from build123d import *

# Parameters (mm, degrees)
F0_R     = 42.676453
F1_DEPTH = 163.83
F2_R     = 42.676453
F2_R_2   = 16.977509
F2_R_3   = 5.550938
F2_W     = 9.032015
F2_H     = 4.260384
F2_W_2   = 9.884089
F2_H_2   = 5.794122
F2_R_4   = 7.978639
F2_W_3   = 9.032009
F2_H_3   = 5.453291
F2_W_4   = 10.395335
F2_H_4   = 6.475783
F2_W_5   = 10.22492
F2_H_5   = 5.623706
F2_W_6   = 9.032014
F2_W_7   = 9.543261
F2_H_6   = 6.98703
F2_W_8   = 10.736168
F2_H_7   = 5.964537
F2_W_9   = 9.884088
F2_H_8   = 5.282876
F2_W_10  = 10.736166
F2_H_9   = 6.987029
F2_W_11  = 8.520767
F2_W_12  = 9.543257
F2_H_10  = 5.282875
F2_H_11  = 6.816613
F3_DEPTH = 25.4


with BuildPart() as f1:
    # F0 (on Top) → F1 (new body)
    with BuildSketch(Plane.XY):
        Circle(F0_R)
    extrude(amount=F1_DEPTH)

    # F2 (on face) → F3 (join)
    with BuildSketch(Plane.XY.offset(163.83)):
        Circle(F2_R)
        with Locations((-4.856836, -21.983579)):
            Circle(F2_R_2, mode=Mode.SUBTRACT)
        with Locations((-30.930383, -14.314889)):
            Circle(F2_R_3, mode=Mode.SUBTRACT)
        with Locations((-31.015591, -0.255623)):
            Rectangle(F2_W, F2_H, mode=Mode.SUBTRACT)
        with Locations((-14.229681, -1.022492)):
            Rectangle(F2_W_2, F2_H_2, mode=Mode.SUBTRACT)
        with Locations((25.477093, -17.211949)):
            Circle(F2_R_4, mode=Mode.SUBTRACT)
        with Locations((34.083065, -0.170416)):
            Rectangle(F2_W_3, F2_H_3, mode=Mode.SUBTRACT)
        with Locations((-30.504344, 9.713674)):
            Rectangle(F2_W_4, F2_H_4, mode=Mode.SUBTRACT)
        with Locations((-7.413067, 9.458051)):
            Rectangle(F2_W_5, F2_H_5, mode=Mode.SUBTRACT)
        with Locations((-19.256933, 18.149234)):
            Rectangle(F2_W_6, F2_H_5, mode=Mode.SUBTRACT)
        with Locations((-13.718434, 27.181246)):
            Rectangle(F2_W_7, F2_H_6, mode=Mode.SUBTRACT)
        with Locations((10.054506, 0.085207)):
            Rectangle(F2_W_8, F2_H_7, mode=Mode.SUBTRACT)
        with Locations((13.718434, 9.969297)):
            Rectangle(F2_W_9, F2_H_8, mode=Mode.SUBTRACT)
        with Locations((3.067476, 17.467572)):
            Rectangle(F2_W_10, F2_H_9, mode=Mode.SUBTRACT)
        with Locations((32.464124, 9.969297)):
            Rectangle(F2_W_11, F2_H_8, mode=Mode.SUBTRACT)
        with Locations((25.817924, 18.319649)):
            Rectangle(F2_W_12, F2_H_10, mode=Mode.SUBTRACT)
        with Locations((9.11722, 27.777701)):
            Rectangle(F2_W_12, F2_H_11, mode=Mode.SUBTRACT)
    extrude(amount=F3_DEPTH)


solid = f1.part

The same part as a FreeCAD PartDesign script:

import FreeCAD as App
import Part
import Sketcher
Q = App.Units.Quantity

doc = App.newDocument("Part")
body = doc.addObject("PartDesign::Body", "Body")

sketch1 = body.newObject("Sketcher::SketchObject", "Sketch")
sketch1.AttachmentSupport = (doc.getObject("XY_Plane"), [""])
sketch1.MapMode = "FlatFace"
sketch1.addGeometry(Part.Circle(App.Vector(0, 0, 0), App.Vector(0, 0, 1), 43), False)
sketch1.addConstraint(Sketcher.Constraint("Coincident", 0, 3, -1, 1))
sketch1.addConstraint(Sketcher.Constraint("Diameter", 0, Q("85.352906 mm")))
pad1 = body.newObject("PartDesign::Pad", "Pad")
pad1.Profile = sketch1
pad1.Length = Q("6.45 in")

sketch2 = body.newObject("Sketcher::SketchObject", "Sketch001")
sketch2.AttachmentSupport = (doc.getObject("XY_Plane"), [""])
sketch2.MapMode = "FlatFace"
sketch2.AttachmentOffset = App.Placement(App.Vector(0, 0, 6.45 * 25.4), App.Rotation())
sketch2.addGeometry(Part.Circle(App.Vector(0, 0, 0), App.Vector(0, 0, 1), 42.7), False)
sketch2.addGeometry(Part.Circle(App.Vector(-4.9, -22, 0), App.Vector(0, 0, 1), 17), False)
sketch2.addGeometry(Part.Circle(App.Vector(-30.9, -14.3, 0), App.Vector(0, 0, 1), 5.6), False)
sketch2.addGeometry(Part.Circle(App.Vector(25.5, -17.2, 0), App.Vector(0, 0, 1), 8), False)
sketch2.addGeometry(Part.LineSegment(App.Vector(-26.5, -2.4, 0), App.Vector(-35.5, -2.4, 0)), False)
sketch2.addGeometry(Part.LineSegment(App.Vector(-35.5, -2.4, 0), App.Vector(-35.5, 1.9, 0)), False)
sketch2.addGeometry(Part.LineSegment(App.Vector(-35.5, 1.9, 0), App.Vector(-26.5, 1.9, 0)), False)
sketch2.addGeometry(Part.LineSegment(App.Vector(-26.5, 1.9, 0), App.Vector(-26.5, -2.4, 0)), False)
sketch2.addGeometry(Part.LineSegment(App.Vector(-25.3, 6.5, 0), App.Vector(-35.7, 6.5, 0)), False)
sketch2.addGeometry(Part.LineSegment(App.Vector(-35.7, 6.5, 0), App.Vector(-35.7, 13, 0)), False)
sketch2.addGeometry(Part.LineSegment(App.Vector(-35.7, 13, 0), App.Vector(-25.3, 13, 0)), False)
sketch2.addGeometry(Part.LineSegment(App.Vector(-25.3, 13, 0), App.Vector(-25.3, 6.5, 0)), False)
sketch2.addGeometry(Part.LineSegment(App.Vector(-9.3, -3.9, 0), App.Vector(-19.2, -3.9, 0)), False)
sketch2.addGeometry(Part.LineSegment(App.Vector(-19.2, -3.9, 0), App.Vector(-19.2, 1.9, 0)), False)
sketch2.addGeometry(Part.LineSegment(App.Vector(-19.2, 1.9, 0), App.Vector(-9.3, 1.9, 0)), False)
sketch2.addGeometry(Part.LineSegment(App.Vector(-9.3, 1.9, 0), App.Vector(-9.3, -3.9, 0)), False)
sketch2.addGeometry(Part.LineSegment(App.Vector(-2.3, 6.6, 0), App.Vector(-12.5, 6.6, 0)), False)
sketch2.addGeometry(Part.LineSegment(App.Vector(-12.5, 6.6, 0), App.Vector(-12.5, 12.3, 0)), False)
sketch2.addGeometry(Part.LineSegment(App.Vector(-12.5, 12.3, 0), App.Vector(-2.3, 12.3, 0)), False)
sketch2.addGeometry(Part.LineSegment(App.Vector(-2.3, 12.3, 0), App.Vector(-2.3, 6.6, 0)), False)
sketch2.addGeometry(Part.LineSegment(App.Vector(-14.7, 15.3, 0), App.Vector(-23.8, 15.3, 0)), False)
sketch2.addGeometry(Part.LineSegment(App.Vector(-23.8, 15.3, 0), App.Vector(-23.8, 21, 0)), False)
sketch2.addGeometry(Part.LineSegment(App.Vector(-23.8, 21, 0), App.Vector(-14.7, 21, 0)), False)
sketch2.addGeometry(Part.LineSegment(App.Vector(-14.7, 21, 0), App.Vector(-14.7, 15.3, 0)), False)
sketch2.addGeometry(Part.LineSegment(App.Vector(-8.9, 23.7, 0), App.Vector(-18.5, 23.7, 0)), False)
sketch2.addGeometry(Part.LineSegment(App.Vector(-18.5, 23.7, 0), App.Vector(-18.5, 30.7, 0)), False)
sketch2.addGeometry(Part.LineSegment(App.Vector(-18.5, 30.7, 0), App.Vector(-8.9, 30.7, 0)), False)
sketch2.addGeometry(Part.LineSegment(App.Vector(-8.9, 30.7, 0), App.Vector(-8.9, 23.7, 0)), False)
sketch2.addGeometry(Part.LineSegment(App.Vector(15.4, -2.9, 0), App.Vector(4.7, -2.9, 0)), False)
sketch2.addGeometry(Part.LineSegment(App.Vector(4.7, -2.9, 0), App.Vector(4.7, 3.1, 0)), False)
sketch2.addGeometry(Part.LineSegment(App.Vector(4.7, 3.1, 0), App.Vector(15.4, 3.1, 0)), False)
sketch2.addGeometry(Part.LineSegment(App.Vector(15.4, 3.1, 0), App.Vector(15.4, -2.9, 0)), False)
sketch2.addGeometry(Part.LineSegment(App.Vector(18.7, 7.3, 0), App.Vector(8.8, 7.3, 0)), False)
sketch2.addGeometry(Part.LineSegment(App.Vector(8.8, 7.3, 0), App.Vector(8.8, 12.6, 0)), False)
sketch2.addGeometry(Part.LineSegment(App.Vector(8.8, 12.6, 0), App.Vector(18.7, 12.6, 0)), False)
sketch2.addGeometry(Part.LineSegment(App.Vector(18.7, 12.6, 0), App.Vector(18.7, 7.3, 0)), False)
sketch2.addGeometry(Part.LineSegment(App.Vector(38.6, -2.9, 0), App.Vector(29.6, -2.9, 0)), False)
sketch2.addGeometry(Part.LineSegment(App.Vector(29.6, -2.9, 0), App.Vector(29.6, 2.6, 0)), False)
sketch2.addGeometry(Part.LineSegment(App.Vector(29.6, 2.6, 0), App.Vector(38.6, 2.6, 0)), False)
sketch2.addGeometry(Part.LineSegment(App.Vector(38.6, 2.6, 0), App.Vector(38.6, -2.9, 0)), False)
sketch2.addGeometry(Part.LineSegment(App.Vector(36.7, 7.3, 0), App.Vector(28.2, 7.3, 0)), False)
sketch2.addGeometry(Part.LineSegment(App.Vector(28.2, 7.3, 0), App.Vector(28.2, 12.6, 0)), False)
sketch2.addGeometry(Part.LineSegment(App.Vector(28.2, 12.6, 0), App.Vector(36.7, 12.6, 0)), False)
sketch2.addGeometry(Part.LineSegment(App.Vector(36.7, 12.6, 0), App.Vector(36.7, 7.3, 0)), False)
sketch2.addGeometry(Part.LineSegment(App.Vector(8.4, 14, 0), App.Vector(-2.3, 14, 0)), False)
sketch2.addGeometry(Part.LineSegment(App.Vector(-2.3, 14, 0), App.Vector(-2.3, 21, 0)), False)
sketch2.addGeometry(Part.LineSegment(App.Vector(-2.3, 21, 0), App.Vector(8.4, 21, 0)), False)
sketch2.addGeometry(Part.LineSegment(App.Vector(8.4, 21, 0), App.Vector(8.4, 14, 0)), False)
sketch2.addGeometry(Part.LineSegment(App.Vector(13.9, 24.4, 0), App.Vector(4.3, 24.4, 0)), False)
sketch2.addGeometry(Part.LineSegment(App.Vector(4.3, 24.4, 0), App.Vector(4.3, 31.2, 0)), False)
sketch2.addGeometry(Part.LineSegment(App.Vector(4.3, 31.2, 0), App.Vector(13.9, 31.2, 0)), False)
sketch2.addGeometry(Part.LineSegment(App.Vector(13.9, 31.2, 0), App.Vector(13.9, 24.4, 0)), False)
sketch2.addGeometry(Part.LineSegment(App.Vector(30.6, 15.7, 0), App.Vector(21, 15.7, 0)), False)
sketch2.addGeometry(Part.LineSegment(App.Vector(21, 15.7, 0), App.Vector(21, 21, 0)), False)
sketch2.addGeometry(Part.LineSegment(App.Vector(21, 21, 0), App.Vector(30.6, 21, 0)), False)
sketch2.addGeometry(Part.LineSegment(App.Vector(30.6, 21, 0), App.Vector(30.6, 15.7, 0)), False)
sketch2.addConstraint(Sketcher.Constraint("Coincident", 4, 2, 5, 1))
sketch2.addConstraint(Sketcher.Constraint("Coincident", 5, 2, 6, 1))
sketch2.addConstraint(Sketcher.Constraint("Coincident", 6, 2, 7, 1))
sketch2.addConstraint(Sketcher.Constraint("Coincident", 7, 2, 4, 1))
sketch2.addConstraint(Sketcher.Constraint("Coincident", 8, 2, 9, 1))
sketch2.addConstraint(Sketcher.Constraint("Coincident", 9, 2, 10, 1))
sketch2.addConstraint(Sketcher.Constraint("Coincident", 10, 2, 11, 1))
sketch2.addConstraint(Sketcher.Constraint("Coincident", 11, 2, 8, 1))
sketch2.addConstraint(Sketcher.Constraint("Coincident", 12, 2, 13, 1))
sketch2.addConstraint(Sketcher.Constraint("Coincident", 13, 2, 14, 1))
sketch2.addConstraint(Sketcher.Constraint("Coincident", 14, 2, 15, 1))
sketch2.addConstraint(Sketcher.Constraint("Coincident", 15, 2, 12, 1))
sketch2.addConstraint(Sketcher.Constraint("Coincident", 16, 2, 17, 1))
sketch2.addConstraint(Sketcher.Constraint("Coincident", 17, 2, 18, 1))
sketch2.addConstraint(Sketcher.Constraint("Coincident", 18, 2, 19, 1))
sketch2.addConstraint(Sketcher.Constraint("Coincident", 19, 2, 16, 1))
sketch2.addConstraint(Sketcher.Constraint("Coincident", 20, 2, 21, 1))
sketch2.addConstraint(Sketcher.Constraint("Coincident", 21, 2, 22, 1))
sketch2.addConstraint(Sketcher.Constraint("Coincident", 22, 2, 23, 1))
sketch2.addConstraint(Sketcher.Constraint("Coincident", 23, 2, 20, 1))
sketch2.addConstraint(Sketcher.Constraint("Coincident", 24, 2, 25, 1))
sketch2.addConstraint(Sketcher.Constraint("Coincident", 25, 2, 26, 1))
sketch2.addConstraint(Sketcher.Constraint("Coincident", 26, 2, 27, 1))
sketch2.addConstraint(Sketcher.Constraint("Coincident", 27, 2, 24, 1))
sketch2.addConstraint(Sketcher.Constraint("Coincident", 28, 2, 29, 1))
sketch2.addConstraint(Sketcher.Constraint("Coincident", 29, 2, 30, 1))
sketch2.addConstraint(Sketcher.Constraint("Coincident", 30, 2, 31, 1))
sketch2.addConstraint(Sketcher.Constraint("Coincident", 31, 2, 28, 1))
sketch2.addConstraint(Sketcher.Constraint("Coincident", 32, 2, 33, 1))
sketch2.addConstraint(Sketcher.Constraint("Coincident", 33, 2, 34, 1))
sketch2.addConstraint(Sketcher.Constraint("Coincident", 34, 2, 35, 1))
sketch2.addConstraint(Sketcher.Constraint("Coincident", 35, 2, 32, 1))
sketch2.addConstraint(Sketcher.Constraint("Coincident", 36, 2, 37, 1))
sketch2.addConstraint(Sketcher.Constraint("Coincident", 37, 2, 38, 1))
sketch2.addConstraint(Sketcher.Constraint("Coincident", 38, 2, 39, 1))
sketch2.addConstraint(Sketcher.Constraint("Coincident", 39, 2, 36, 1))
sketch2.addConstraint(Sketcher.Constraint("Coincident", 40, 2, 41, 1))
sketch2.addConstraint(Sketcher.Constraint("Coincident", 41, 2, 42, 1))
sketch2.addConstraint(Sketcher.Constraint("Coincident", 42, 2, 43, 1))
sketch2.addConstraint(Sketcher.Constraint("Coincident", 43, 2, 40, 1))
sketch2.addConstraint(Sketcher.Constraint("Coincident", 44, 2, 45, 1))
sketch2.addConstraint(Sketcher.Constraint("Coincident", 45, 2, 46, 1))
sketch2.addConstraint(Sketcher.Constraint("Coincident", 46, 2, 47, 1))
sketch2.addConstraint(Sketcher.Constraint("Coincident", 47, 2, 44, 1))
sketch2.addConstraint(Sketcher.Constraint("Coincident", 48, 2, 49, 1))
sketch2.addConstraint(Sketcher.Constraint("Coincident", 49, 2, 50, 1))
sketch2.addConstraint(Sketcher.Constraint("Coincident", 50, 2, 51, 1))
sketch2.addConstraint(Sketcher.Constraint("Coincident", 51, 2, 48, 1))
sketch2.addConstraint(Sketcher.Constraint("Coincident", 52, 2, 53, 1))
sketch2.addConstraint(Sketcher.Constraint("Coincident", 53, 2, 54, 1))
sketch2.addConstraint(Sketcher.Constraint("Coincident", 54, 2, 55, 1))
sketch2.addConstraint(Sketcher.Constraint("Coincident", 55, 2, 52, 1))
sketch2.addConstraint(Sketcher.Constraint("Horizontal", 4))
sketch2.addConstraint(Sketcher.Constraint("Vertical", 5))
sketch2.addConstraint(Sketcher.Constraint("Horizontal", 6))
sketch2.addConstraint(Sketcher.Constraint("Vertical", 7))
sketch2.addConstraint(Sketcher.Constraint("Horizontal", 8))
sketch2.addConstraint(Sketcher.Constraint("Vertical", 9))
sketch2.addConstraint(Sketcher.Constraint("Horizontal", 10))
sketch2.addConstraint(Sketcher.Constraint("Vertical", 11))
sketch2.addConstraint(Sketcher.Constraint("Horizontal", 12))
sketch2.addConstraint(Sketcher.Constraint("Vertical", 13))
sketch2.addConstraint(Sketcher.Constraint("Horizontal", 14))
sketch2.addConstraint(Sketcher.Constraint("Vertical", 15))
sketch2.addConstraint(Sketcher.Constraint("Horizontal", 16))
sketch2.addConstraint(Sketcher.Constraint("Vertical", 17))
sketch2.addConstraint(Sketcher.Constraint("Horizontal", 18))
sketch2.addConstraint(Sketcher.Constraint("Vertical", 19))
sketch2.addConstraint(Sketcher.Constraint("Horizontal", 20))
sketch2.addConstraint(Sketcher.Constraint("Vertical", 21))
sketch2.addConstraint(Sketcher.Constraint("Horizontal", 22))
sketch2.addConstraint(Sketcher.Constraint("Vertical", 23))
sketch2.addConstraint(Sketcher.Constraint("Horizontal", 24))
sketch2.addConstraint(Sketcher.Constraint("Vertical", 25))
sketch2.addConstraint(Sketcher.Constraint("Horizontal", 26))
sketch2.addConstraint(Sketcher.Constraint("Vertical", 27))
sketch2.addConstraint(Sketcher.Constraint("Horizontal", 28))
sketch2.addConstraint(Sketcher.Constraint("Vertical", 29))
sketch2.addConstraint(Sketcher.Constraint("Horizontal", 30))
sketch2.addConstraint(Sketcher.Constraint("Vertical", 31))
sketch2.addConstraint(Sketcher.Constraint("Horizontal", 32))
sketch2.addConstraint(Sketcher.Constraint("Vertical", 33))
sketch2.addConstraint(Sketcher.Constraint("Horizontal", 34))
sketch2.addConstraint(Sketcher.Constraint("Vertical", 35))
sketch2.addConstraint(Sketcher.Constraint("Horizontal", 36))
sketch2.addConstraint(Sketcher.Constraint("Vertical", 37))
sketch2.addConstraint(Sketcher.Constraint("Horizontal", 38))
sketch2.addConstraint(Sketcher.Constraint("Vertical", 39))
sketch2.addConstraint(Sketcher.Constraint("Horizontal", 40))
sketch2.addConstraint(Sketcher.Constraint("Vertical", 41))
sketch2.addConstraint(Sketcher.Constraint("Horizontal", 42))
sketch2.addConstraint(Sketcher.Constraint("Vertical", 43))
sketch2.addConstraint(Sketcher.Constraint("Horizontal", 44))
sketch2.addConstraint(Sketcher.Constraint("Vertical", 45))
sketch2.addConstraint(Sketcher.Constraint("Horizontal", 46))
sketch2.addConstraint(Sketcher.Constraint("Vertical", 47))
sketch2.addConstraint(Sketcher.Constraint("Horizontal", 48))
sketch2.addConstraint(Sketcher.Constraint("Vertical", 49))
sketch2.addConstraint(Sketcher.Constraint("Horizontal", 50))
sketch2.addConstraint(Sketcher.Constraint("Vertical", 51))
sketch2.addConstraint(Sketcher.Constraint("Horizontal", 52))
sketch2.addConstraint(Sketcher.Constraint("Vertical", 53))
sketch2.addConstraint(Sketcher.Constraint("Horizontal", 54))
sketch2.addConstraint(Sketcher.Constraint("Vertical", 55))
sketch2.addConstraint(Sketcher.Constraint("Coincident", 0, 3, -1, 1))
sketch2.addConstraint(Sketcher.Constraint("Horizontal", 6, 2, 13, 2))
sketch2.addConstraint(Sketcher.Constraint("Horizontal", 31, 2, 36, 2))
sketch2.addConstraint(Sketcher.Constraint("Horizontal", 35, 2, 40, 2))
sketch2.addConstraint(Sketcher.Constraint("Horizontal", 34, 2, 41, 2))
sketch2.addConstraint(Sketcher.Constraint("Horizontal", 22, 2, 45, 2))
sketch2.addConstraint(Sketcher.Constraint("Horizontal", 46, 2, 53, 2))
sketch2.addConstraint(Sketcher.Constraint("Vertical", 19, 2, 44, 2))
sketch2.addConstraint(Sketcher.Constraint("Equal", 6, 20))
sketch2.addConstraint(Sketcher.Constraint("Equal", 14, 32))
sketch2.addConstraint(Sketcher.Constraint("Equal", 50, 52))
sketch2.addConstraint(Sketcher.Constraint("Equal", 19, 21))
sketch2.addConstraint(Sketcher.Constraint("Equal", 27, 45))
sketch2.addConstraint(Sketcher.Constraint("Equal", 43, 53))
sketch2.addConstraint(Sketcher.Constraint("Diameter", 1, Q("33.955018 mm")))
sketch2.addConstraint(Sketcher.Constraint("Diameter", 0, Q("85.352906 mm")))
sketch2.addConstraint(Sketcher.Constraint("Diameter", 2, Q("11.101876 mm")))
sketch2.addConstraint(Sketcher.Constraint("Diameter", 3, Q("15.957278 mm")))
sketch2.addConstraint(Sketcher.Constraint("DistanceX", 12, 2, 12, 1, Q("9.884089 mm")))
sketch2.addConstraint(Sketcher.Constraint("DistanceX", 16, 2, 16, 1, Q("10.22492 mm")))
sketch2.addConstraint(Sketcher.Constraint("DistanceX", 24, 2, 24, 1, Q("9.543261 mm")))
sketch2.addConstraint(Sketcher.Constraint("DistanceX", 36, 2, 36, 1, Q("9.032009 mm")))
sketch2.addConstraint(Sketcher.Constraint("DistanceY", 13, 1, 13, 2, Q("5.794122 mm")))
sketch2.addConstraint(Sketcher.Constraint("DistanceY", 25, 1, 25, 2, Q("6.98703 mm")))
sketch2.addConstraint(Sketcher.Constraint("DistanceY", 37, 1, 37, 2, Q("5.453291 mm")))
sketch2.addConstraint(Sketcher.Constraint("DistanceX", 4, 2, -1, 1, Q("35.531599 mm")))
sketch2.addConstraint(Sketcher.Constraint("DistanceX", 2, 3, 6, 2, Q("4.430799 mm")))
sketch2.addConstraint(Sketcher.Constraint("DistanceX", 13, 2, 16, 2, Q("6.646199 mm")))
sketch2.addConstraint(Sketcher.Constraint("DistanceY", 11, 2, 20, 2, Q("8.861598 mm")))
sketch2.addConstraint(Sketcher.Constraint("DistanceX", 22, 2, 17, 2, Q("2.215399 mm")))
sketch2.addConstraint(Sketcher.Constraint("DistanceX", 32, 2, 30, 2, Q("6.6462 mm")))
sketch2.addConstraint(Sketcher.Constraint("DistanceY", 32, 2, 47, 2, Q("6.646199 mm")))
sketch2.addConstraint(Sketcher.Constraint("DistanceX", 45, 2, 48, 2, Q("6.646199 mm")))
sketch2.addConstraint(Sketcher.Constraint("DistanceX", 48, 2, 33, 2, Q("4.430798 mm")))
sketch2.addConstraint(Sketcher.Constraint("DistanceX", 4, 2, 4, 1, Q("9.032015 mm")))
sketch2.addConstraint(Sketcher.Constraint("DistanceX", 8, 2, 8, 1, Q("10.395335 mm")))
sketch2.addConstraint(Sketcher.Constraint("DistanceX", 28, 2, 28, 1, Q("10.736168 mm")))
sketch2.addConstraint(Sketcher.Constraint("DistanceX", 40, 2, 40, 1, Q("8.520767 mm")))
sketch2.addConstraint(Sketcher.Constraint("DistanceX", 44, 2, 44, 1, Q("10.736166 mm")))
sketch2.addConstraint(Sketcher.Constraint("DistanceX", 48, 2, 48, 1, Q("9.543257 mm")))
sketch2.addConstraint(Sketcher.Constraint("DistanceY", 5, 1, 5, 2, Q("4.260384 mm")))
sketch2.addConstraint(Sketcher.Constraint("DistanceY", 9, 1, 9, 2, Q("6.475783 mm")))
sketch2.addConstraint(Sketcher.Constraint("DistanceY", 17, 1, 17, 2, Q("5.623706 mm")))
sketch2.addConstraint(Sketcher.Constraint("DistanceY", 29, 1, 29, 2, Q("5.964537 mm")))
sketch2.addConstraint(Sketcher.Constraint("DistanceY", 33, 1, 33, 2, Q("5.282876 mm")))
sketch2.addConstraint(Sketcher.Constraint("DistanceY", 49, 1, 49, 2, Q("6.816613 mm")))
sketch2.addConstraint(Sketcher.Constraint("DistanceY", 1, 3, -1, 1, Q("21.983579 mm")))
sketch2.addConstraint(Sketcher.Constraint("DistanceY", 2, 3, -1, 1, Q("14.314889 mm")))
sketch2.addConstraint(Sketcher.Constraint("DistanceY", 3, 3, -1, 1, Q("17.211949 mm")))
sketch2.addConstraint(Sketcher.Constraint("DistanceY", -1, 1, 5, 2, Q("1.874569 mm")))
sketch2.addConstraint(Sketcher.Constraint("DistanceX", 8, 2, -1, 1, Q("35.702011 mm")))
sketch2.addConstraint(Sketcher.Constraint("DistanceX", 20, 2, -1, 1, Q("23.77294 mm")))
sketch2.addConstraint(Sketcher.Constraint("DistanceY", -1, 1, 20, 2, Q("15.337381 mm")))
sketch2.addConstraint(Sketcher.Constraint("DistanceY", -1, 1, 24, 2, Q("23.687731 mm")))
sketch2.addConstraint(Sketcher.Constraint("DistanceY", 28, 2, -1, 1, Q("2.897061 mm")))
sketch2.addConstraint(Sketcher.Constraint("DistanceX", -1, 1, 36, 2, Q("29.567061 mm")))
sketch2.addConstraint(Sketcher.Constraint("DistanceX", -1, 1, 40, 2, Q("28.20374 mm")))
sketch2.addConstraint(Sketcher.Constraint("DistanceX", 1, 3, 3, 3, Q("30.333929 mm")))
sketch2.addConstraint(Sketcher.Constraint("DistanceX", 4, 2, 3, 3, Q("61.008691 mm")))
sketch2.addConstraint(Sketcher.Constraint("DistanceY", 14, 2, 16, 2, Q("4.771629 mm")))
sketch2.addConstraint(Sketcher.Constraint("DistanceX", 24, 2, 22, 2, Q("3.749138 mm")))
sketch2.addConstraint(Sketcher.Constraint("DistanceY", 33, 2, 48, 2, Q("11.758659 mm")))
sketch2.addConstraint(Sketcher.Constraint("DistanceX", -1, 1, 52, 2, Q("21.046295 mm")))
pad2 = body.newObject("PartDesign::Pad", "Pad001")
pad2.Profile = sketch2
pad2.Length = Q("1 in")

doc.recompute()
